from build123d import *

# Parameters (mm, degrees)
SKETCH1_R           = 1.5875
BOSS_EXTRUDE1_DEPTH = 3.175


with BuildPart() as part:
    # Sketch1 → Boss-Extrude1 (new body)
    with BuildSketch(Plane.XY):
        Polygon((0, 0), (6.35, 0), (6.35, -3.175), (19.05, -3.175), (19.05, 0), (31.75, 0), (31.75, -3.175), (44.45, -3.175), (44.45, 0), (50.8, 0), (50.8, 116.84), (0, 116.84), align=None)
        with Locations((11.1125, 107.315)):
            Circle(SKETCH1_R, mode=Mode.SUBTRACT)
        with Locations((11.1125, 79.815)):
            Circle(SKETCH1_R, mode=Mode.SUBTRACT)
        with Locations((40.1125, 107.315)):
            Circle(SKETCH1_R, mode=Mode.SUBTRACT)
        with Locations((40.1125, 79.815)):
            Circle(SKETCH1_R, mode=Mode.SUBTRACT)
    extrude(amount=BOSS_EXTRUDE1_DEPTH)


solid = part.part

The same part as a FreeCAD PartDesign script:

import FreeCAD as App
import Part
import Sketcher
from FreeCAD import Vector
Q = App.Units.Quantity


def add_polygon(sketch, points):
    """Adds a closed chain of lines whose ends are joined by coincident constraints."""
    first, n = sketch.GeometryCount, len(points)
    for a, b in zip(points, points[1:] + points[:1]):
        sketch.addGeometry(Part.LineSegment(App.Vector(*a, 0), App.Vector(*b, 0)), False)
    for i in range(n):
        sketch.addConstraint(Sketcher.Constraint("Coincident", first + i, 2, first + (i + 1) % n, 1))

doc = App.newDocument("Part")
params = doc.addObject("Spreadsheet::Sheet", "Params")
for row, (alias, value) in enumerate([
    ("sketch1_width", "2 in"),
    ("sketch1_diameter", "0.125 in"),
    ("sketch1_width2", "0.5 in"),
    ("sketch1_height", "4.6 in"),
    ("sketch1_height2", "0.125 in"),
    ("pad1_length", "0.125 in"),
], start=1):
    params.set(f"A{row}", alias)
    params.set(f"B{row}", "=" + value)
    params.setAlias(f"B{row}", alias)

body = doc.addObject("PartDesign::Body", "Body")

sketch1 = body.newObject("Sketcher::SketchObject", "Sketch")
sketch1.AttachmentSupport = (doc.getObject("XY_Plane"), [""])
sketch1.MapMode = "FlatFace"
add_polygon(sketch1, [(0, 0), (6.35, 0), (6.35, -3.175), (19.05, -3.175), (19.05, 0), (31.75, 0), (31.75, -3.175), (44.45, -3.175), (44.45, 0), (50.8, 0), (50.8, 116.84), (0, 116.84)])
sketch1.addGeometry(Part.Circle(Vector(11.1125, 79.815, 0), Vector(0, 0, 1), 1.5875), False)
sketch1.addGeometry(Part.Circle(Vector(40.1125, 79.815, 0), Vector(0, 0, 1), 1.5875), False)
sketch1.addGeometry(Part.Circle(Vector(11.1125, 107.315, 0), Vector(0, 0, 1), 1.5875), False)
sketch1.addGeometry(Part.Circle(Vector(40.1125, 107.315, 0), Vector(0, 0, 1), 1.5875), False)
sketch1.addConstraint([
    Sketcher.Constraint("Horizontal", 0),
    Sketcher.Constraint("Vertical", 1),
    Sketcher.Constraint("Horizontal", 2),
    Sketcher.Constraint("Vertical", 3),
    Sketcher.Constraint("Horizontal", 4),
    Sketcher.Constraint("Vertical", 5),
    Sketcher.Constraint("Horizontal", 6),
    Sketcher.Constraint("Vertical", 7),
    Sketcher.Constraint("Horizontal", 8),
    Sketcher.Constraint("Vertical", 9),
    Sketcher.Constraint("Horizontal", 10),
    Sketcher.Constraint("Vertical", 11),
    Sketcher.Constraint("Coincident", 11, 2, -1, 1),
    Sketcher.Constraint("Equal", 12, 13),
    Sketcher.Constraint("Equal", 13, 14),
    Sketcher.Constraint("Equal", 14, 15),
    Sketcher.Constraint("PointOnObject", 3, 2, -1),
    Sketcher.Constraint("PointOnObject", 7, 2, -1),
    Sketcher.Constraint("Horizontal", 12, 3, 13, 3),
    Sketcher.Constraint("Horizontal", 14, 3, 15, 3),
    Sketcher.Constraint("Horizontal", 2, 2, 5, 2),
    Sketcher.Constraint("Vertical", 12, 3, 14, 3),
    Sketcher.Constraint("Vertical", 13, 3, 15, 3),
    Sketcher.Constraint("Equal", 2, 4),
    Sketcher.Constraint("Equal", 4, 6),
    Sketcher.Constraint("Equal", 0, 8),
    Sketcher.Constraint("DistanceX", 10, 2, 10, 1, Q("2 in")),
    Sketcher.Constraint("Diameter", 12, Q("0.125 in")),
    Sketcher.Constraint("DistanceX", 2, 1, 2, 2, Q("0.5 in")),
    Sketcher.Constraint("DistanceY", 9, 1, 9, 2, Q("4.6 in")),
    Sketcher.Constraint("DistanceY", 1, 2, 1, 1, Q("0.125 in")),
    Sketcher.Constraint("DistanceY", 1, 2, 14, 3, Q("4.35 in")),
    Sketcher.Constraint("DistanceX", -1, 1, 12, 3, Q("0.4375 in")),
    Sketcher.Constraint("DistanceY", -1, 1, 12, 3, 79.815),
    Sketcher.Constraint("DistanceX", -1, 1, 13, 3, 40.1125),
])
sketch1.setExpression("Constraints[38]", "Params.sketch1_width")
sketch1.setExpression("Constraints[39]", "Params.sketch1_diameter")
sketch1.setExpression("Constraints[40]", "Params.sketch1_width2")
sketch1.setExpression("Constraints[41]", "Params.sketch1_height")
sketch1.setExpression("Constraints[42]", "Params.sketch1_height2")
pad1 = body.newObject("PartDesign::Pad", "Pad")
pad1.Profile = sketch1
pad1.setExpression("Length", "Params.pad1_length")

doc.recompute()
